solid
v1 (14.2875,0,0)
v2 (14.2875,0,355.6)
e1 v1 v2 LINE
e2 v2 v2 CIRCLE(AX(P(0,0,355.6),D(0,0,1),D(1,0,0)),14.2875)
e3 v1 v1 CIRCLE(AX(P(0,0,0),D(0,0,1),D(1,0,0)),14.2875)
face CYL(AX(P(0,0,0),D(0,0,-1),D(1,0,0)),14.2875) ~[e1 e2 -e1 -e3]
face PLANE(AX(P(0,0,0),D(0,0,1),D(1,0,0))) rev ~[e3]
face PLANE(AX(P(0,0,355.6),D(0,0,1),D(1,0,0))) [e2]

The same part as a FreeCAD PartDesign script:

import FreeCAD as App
import Part
import Sketcher
Q = App.Units.Quantity

doc = App.newDocument("Part")
body = doc.addObject("PartDesign::Body", "Body")

sketch1 = doc.addObject("Sketcher::SketchObject", "Sketch")
body.addObject(sketch1)
sketch1.AttachmentSupport = (doc.XY_Plane, [""])
sketch1.MapMode = "FlatFace"
sketch1.addGeometry(Part.Circle(App.Vector(0, 0, 0), App.Vector(0, 0, 1), 14), False)
sketch1.addConstraint(Sketcher.Constraint("Coincident", 0, 3, -1, 1))
sketch1.addConstraint(Sketcher.Constraint("Diameter", 0, Q("1.125 in")))
pad1 = doc.addObject("PartDesign::Pad", "Pad")
body.addObject(pad1)
pad1.Profile = sketch1
pad1.Length = Q("14 in")

doc.recompute()
